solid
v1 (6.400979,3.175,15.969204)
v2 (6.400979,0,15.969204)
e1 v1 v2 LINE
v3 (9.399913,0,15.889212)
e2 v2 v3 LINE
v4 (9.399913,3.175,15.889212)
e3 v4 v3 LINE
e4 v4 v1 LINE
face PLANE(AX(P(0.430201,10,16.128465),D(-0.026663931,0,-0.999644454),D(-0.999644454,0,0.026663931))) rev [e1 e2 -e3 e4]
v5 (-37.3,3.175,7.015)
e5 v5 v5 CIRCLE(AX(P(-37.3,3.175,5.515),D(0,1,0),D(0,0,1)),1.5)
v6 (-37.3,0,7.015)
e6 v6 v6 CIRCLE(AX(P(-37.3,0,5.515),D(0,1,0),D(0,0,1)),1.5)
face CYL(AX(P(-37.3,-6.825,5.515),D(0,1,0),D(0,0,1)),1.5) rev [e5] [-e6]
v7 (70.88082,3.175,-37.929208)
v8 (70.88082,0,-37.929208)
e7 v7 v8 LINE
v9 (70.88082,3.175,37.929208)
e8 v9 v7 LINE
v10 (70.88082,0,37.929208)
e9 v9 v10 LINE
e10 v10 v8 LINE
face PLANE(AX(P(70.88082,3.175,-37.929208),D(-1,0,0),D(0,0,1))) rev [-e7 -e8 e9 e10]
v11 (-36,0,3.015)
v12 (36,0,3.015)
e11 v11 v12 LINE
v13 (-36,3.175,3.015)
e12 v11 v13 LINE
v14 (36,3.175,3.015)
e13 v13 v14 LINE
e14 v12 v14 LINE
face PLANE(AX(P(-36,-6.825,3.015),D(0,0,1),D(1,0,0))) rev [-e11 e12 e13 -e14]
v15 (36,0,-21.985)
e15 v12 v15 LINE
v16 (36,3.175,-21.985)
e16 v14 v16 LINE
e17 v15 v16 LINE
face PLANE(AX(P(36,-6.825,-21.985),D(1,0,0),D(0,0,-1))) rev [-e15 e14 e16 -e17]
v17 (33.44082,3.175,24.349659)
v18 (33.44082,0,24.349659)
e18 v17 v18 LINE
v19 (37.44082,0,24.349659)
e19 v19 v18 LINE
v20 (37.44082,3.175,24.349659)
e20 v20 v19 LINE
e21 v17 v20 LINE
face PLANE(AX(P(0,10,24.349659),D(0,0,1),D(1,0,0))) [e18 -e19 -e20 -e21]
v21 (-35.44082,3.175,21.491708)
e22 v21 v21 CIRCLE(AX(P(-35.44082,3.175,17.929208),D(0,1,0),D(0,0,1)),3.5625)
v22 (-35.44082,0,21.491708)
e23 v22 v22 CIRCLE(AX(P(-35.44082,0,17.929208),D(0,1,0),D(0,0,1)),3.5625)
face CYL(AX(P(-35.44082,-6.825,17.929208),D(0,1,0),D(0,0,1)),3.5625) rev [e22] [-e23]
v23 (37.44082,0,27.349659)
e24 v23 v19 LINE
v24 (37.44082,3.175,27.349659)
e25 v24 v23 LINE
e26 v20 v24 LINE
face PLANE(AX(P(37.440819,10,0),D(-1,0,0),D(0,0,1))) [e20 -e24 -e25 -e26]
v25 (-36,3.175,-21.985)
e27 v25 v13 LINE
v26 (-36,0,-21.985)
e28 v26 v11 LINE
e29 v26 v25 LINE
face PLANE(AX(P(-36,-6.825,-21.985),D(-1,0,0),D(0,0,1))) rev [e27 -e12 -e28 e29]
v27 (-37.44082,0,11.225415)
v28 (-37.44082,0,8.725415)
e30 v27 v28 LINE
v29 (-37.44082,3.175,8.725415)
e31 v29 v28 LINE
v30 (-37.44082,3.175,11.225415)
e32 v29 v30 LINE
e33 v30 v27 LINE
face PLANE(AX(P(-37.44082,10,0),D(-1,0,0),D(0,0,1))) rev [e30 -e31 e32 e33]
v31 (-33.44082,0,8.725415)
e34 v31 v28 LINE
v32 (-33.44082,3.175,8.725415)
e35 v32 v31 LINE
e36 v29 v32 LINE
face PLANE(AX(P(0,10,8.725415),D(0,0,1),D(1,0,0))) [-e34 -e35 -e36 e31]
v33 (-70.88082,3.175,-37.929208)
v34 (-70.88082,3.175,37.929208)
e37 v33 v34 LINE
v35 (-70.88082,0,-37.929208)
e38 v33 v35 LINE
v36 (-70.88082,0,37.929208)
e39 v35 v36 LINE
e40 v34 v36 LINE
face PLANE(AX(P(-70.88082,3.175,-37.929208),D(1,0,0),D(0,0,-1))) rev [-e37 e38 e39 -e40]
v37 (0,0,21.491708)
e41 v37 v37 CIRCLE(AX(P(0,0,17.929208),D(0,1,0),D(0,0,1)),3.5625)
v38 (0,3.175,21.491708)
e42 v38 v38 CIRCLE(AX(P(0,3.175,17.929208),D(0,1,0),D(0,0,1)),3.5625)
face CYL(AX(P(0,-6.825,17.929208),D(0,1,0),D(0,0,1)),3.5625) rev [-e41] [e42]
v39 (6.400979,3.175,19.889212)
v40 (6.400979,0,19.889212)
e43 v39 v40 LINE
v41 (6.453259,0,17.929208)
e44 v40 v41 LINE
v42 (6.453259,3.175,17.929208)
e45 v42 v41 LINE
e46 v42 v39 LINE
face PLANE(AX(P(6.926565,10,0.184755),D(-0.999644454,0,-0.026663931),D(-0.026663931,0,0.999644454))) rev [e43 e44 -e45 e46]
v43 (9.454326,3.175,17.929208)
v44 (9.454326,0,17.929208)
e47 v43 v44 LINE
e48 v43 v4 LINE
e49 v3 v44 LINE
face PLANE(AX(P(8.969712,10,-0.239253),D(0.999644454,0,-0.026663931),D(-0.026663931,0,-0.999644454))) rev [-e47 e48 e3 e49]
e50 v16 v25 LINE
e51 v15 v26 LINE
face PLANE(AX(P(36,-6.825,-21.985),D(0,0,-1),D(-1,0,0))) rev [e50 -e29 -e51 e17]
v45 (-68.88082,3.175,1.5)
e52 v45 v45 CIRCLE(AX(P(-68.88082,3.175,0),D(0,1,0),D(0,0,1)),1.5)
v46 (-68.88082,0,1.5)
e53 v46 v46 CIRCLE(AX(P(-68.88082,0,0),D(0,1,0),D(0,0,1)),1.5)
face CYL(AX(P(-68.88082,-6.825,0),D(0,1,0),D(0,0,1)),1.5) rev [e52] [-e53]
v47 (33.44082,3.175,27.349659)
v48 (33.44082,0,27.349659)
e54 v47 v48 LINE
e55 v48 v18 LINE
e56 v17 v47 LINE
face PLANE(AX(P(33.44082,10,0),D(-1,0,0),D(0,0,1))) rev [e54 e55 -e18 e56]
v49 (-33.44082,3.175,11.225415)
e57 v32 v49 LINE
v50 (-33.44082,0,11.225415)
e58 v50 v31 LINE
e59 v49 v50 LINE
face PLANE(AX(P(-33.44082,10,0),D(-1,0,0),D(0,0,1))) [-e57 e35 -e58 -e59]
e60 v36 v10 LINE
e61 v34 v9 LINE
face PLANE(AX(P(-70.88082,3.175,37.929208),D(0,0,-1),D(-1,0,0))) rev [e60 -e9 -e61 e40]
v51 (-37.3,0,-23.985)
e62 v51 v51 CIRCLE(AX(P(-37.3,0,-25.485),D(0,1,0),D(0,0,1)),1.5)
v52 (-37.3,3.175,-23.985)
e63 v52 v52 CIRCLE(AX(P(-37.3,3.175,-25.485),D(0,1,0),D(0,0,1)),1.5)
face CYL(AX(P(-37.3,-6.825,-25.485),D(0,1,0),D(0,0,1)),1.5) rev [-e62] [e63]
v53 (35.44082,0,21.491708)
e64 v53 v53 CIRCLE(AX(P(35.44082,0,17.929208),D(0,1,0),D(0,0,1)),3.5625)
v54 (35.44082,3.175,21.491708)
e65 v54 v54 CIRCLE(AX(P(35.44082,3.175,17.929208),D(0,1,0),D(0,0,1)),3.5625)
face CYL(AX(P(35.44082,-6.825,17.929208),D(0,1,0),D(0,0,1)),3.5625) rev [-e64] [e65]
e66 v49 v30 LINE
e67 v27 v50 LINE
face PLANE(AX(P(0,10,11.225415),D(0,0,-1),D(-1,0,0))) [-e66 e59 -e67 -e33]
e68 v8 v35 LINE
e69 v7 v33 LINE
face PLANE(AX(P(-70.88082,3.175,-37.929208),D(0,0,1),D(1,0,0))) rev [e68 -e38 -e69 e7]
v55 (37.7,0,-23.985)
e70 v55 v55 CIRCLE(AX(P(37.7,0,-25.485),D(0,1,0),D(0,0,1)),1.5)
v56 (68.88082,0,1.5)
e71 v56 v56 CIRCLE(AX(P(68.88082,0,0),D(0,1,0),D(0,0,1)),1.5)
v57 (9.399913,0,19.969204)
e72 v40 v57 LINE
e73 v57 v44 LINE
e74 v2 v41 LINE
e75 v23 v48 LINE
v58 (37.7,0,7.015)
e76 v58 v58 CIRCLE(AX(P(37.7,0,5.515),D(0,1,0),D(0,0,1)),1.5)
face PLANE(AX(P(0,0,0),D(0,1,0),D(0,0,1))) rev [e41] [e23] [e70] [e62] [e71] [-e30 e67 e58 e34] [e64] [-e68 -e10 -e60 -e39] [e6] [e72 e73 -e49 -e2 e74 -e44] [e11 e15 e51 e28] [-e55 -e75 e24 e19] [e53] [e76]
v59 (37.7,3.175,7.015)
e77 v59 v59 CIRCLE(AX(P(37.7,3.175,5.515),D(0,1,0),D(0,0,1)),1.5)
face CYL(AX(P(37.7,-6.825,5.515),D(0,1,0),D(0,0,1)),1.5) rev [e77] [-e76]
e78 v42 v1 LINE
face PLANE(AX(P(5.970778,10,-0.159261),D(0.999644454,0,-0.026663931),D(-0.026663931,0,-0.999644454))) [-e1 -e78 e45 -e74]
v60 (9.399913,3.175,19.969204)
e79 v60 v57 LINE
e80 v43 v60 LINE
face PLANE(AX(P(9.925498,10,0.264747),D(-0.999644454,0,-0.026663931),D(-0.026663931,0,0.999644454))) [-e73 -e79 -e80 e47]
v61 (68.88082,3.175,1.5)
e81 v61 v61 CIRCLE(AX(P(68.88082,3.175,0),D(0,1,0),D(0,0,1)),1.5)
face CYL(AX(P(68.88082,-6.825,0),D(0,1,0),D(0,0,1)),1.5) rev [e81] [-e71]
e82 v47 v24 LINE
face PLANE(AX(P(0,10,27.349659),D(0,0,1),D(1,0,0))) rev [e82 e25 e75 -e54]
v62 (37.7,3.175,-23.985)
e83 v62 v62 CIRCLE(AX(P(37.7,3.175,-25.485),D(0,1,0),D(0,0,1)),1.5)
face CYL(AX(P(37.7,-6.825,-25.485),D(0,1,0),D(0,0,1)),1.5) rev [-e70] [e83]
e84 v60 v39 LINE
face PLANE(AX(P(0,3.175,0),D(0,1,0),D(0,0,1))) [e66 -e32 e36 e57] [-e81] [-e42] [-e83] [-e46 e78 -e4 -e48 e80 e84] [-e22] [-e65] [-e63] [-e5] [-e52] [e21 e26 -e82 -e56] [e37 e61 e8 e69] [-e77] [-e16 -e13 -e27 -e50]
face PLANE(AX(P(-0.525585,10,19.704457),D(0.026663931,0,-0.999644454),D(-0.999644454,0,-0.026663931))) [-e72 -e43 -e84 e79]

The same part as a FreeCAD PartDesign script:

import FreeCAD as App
import Part
import Sketcher
Q = App.Units.Quantity

doc = App.newDocument("Part")
body = doc.addObject("PartDesign::Body", "Body")

# Sketch on XZ plane
sketch1 = body.newObject("Sketcher::SketchObject", "Sketch")
sketch1.AttachmentSupport = (doc.getObject("XZ_Plane"), [""])
sketch1.MapMode = "FlatFace"
sketch1.addGeometry([
    Part.LineSegment(App.Vector(-71, -38, 0), App.Vector(-71, 38, 0)),
    Part.LineSegment(App.Vector(-71, 38, 0), App.Vector(71, 38, 0)),
    Part.LineSegment(App.Vector(71, 38, 0), App.Vector(71, -38, 0)),
    Part.LineSegment(App.Vector(71, -38, 0), App.Vector(-71, -38, 0)),
], False)
sketch1.addConstraint([
    Sketcher.Constraint("Coincident", 0, 2, 1, 1),
    Sketcher.Constraint("Coincident", 1, 2, 2, 1),
    Sketcher.Constraint("Coincident", 2, 2, 3, 1),
    Sketcher.Constraint("Coincident", 3, 2, 0, 1),
    Sketcher.Constraint("Vertical", 0),
    Sketcher.Constraint("Horizontal", 1),
    Sketcher.Constraint("Vertical", 2),
    Sketcher.Constraint("Horizontal", 3),
    Sketcher.Constraint("Symmetric", 0, 2, 2, 2, -1, 1),
    Sketcher.Constraint("DistanceX", 1, 1, 1, 2, Q("141.761639 mm")),
    Sketcher.Constraint("DistanceY", 0, 1, 0, 2, Q("75.858415 mm")),
])
pad1 = body.newObject("PartDesign::Pad", "Pad")
pad1.Profile = sketch1
pad1.Length = 3.175
pad1.Reversed = True

# Sketch on XZ plane
sketch2 = body.newObject("Sketcher::SketchObject", "Sketch001")
sketch2.AttachmentSupport = (doc.getObject("XZ_Plane"), [""])
sketch2.MapMode = "FlatFace"
sketch2.AttachmentOffset = App.Placement(App.Vector(0, 0, -3.175), App.Rotation())
sketch2.addGeometry([
    Part.Circle(App.Vector(-35.4, 17.9, 0), App.Vector(0, 0, 1), 3.6),
    Part.Circle(App.Vector(0, 17.9, 0), App.Vector(0, 0, 1), 3.6),
    Part.Circle(App.Vector(35.4, 17.9, 0), App.Vector(0, 0, 1), 3.6),
], False)
sketch2.addConstraint([
    Sketcher.Constraint("Equal", 0, 1),
    Sketcher.Constraint("Equal", 1, 2),
    Sketcher.Constraint("Symmetric", 0, 3, 2, 3, -2),
    Sketcher.Constraint("PointOnObject", 1, 3, -2),
    Sketcher.Constraint("Horizontal", 0, 3, 1, 3),
    Sketcher.Constraint("Diameter", 0, Q("7.125 mm")),
    Sketcher.Constraint("DistanceX", 0, 3, -1, 1, Q("35.44082 mm")),
    Sketcher.Constraint("DistanceY", -1, 1, 0, 3, Q("17.929208 mm")),
])
pocket1 = body.newObject("PartDesign::Pocket", "Pocket")
pocket1.Profile = sketch2
pocket1.Length = 10
pocket1.Reversed = True

# Sketch on XZ plane
sketch3 = body.newObject("Sketcher::SketchObject", "Sketch002")
sketch3.AttachmentSupport = (doc.getObject("XZ_Plane"), [""])
sketch3.MapMode = "FlatFace"
sketch3.AttachmentOffset = App.Placement(App.Vector(0, 0, -3.175), App.Rotation())
sketch3.addGeometry([
    Part.LineSegment(App.Vector(-36, -22, 0), App.Vector(-36, 3, 0)),
    Part.LineSegment(App.Vector(-36, 3, 0), App.Vector(36, 3, 0)),
    Part.LineSegment(App.Vector(36, 3, 0), App.Vector(36, -22, 0)),
    Part.LineSegment(App.Vector(36, -22, 0), App.Vector(-36, -22, 0)),
], False)
sketch3.addConstraint([
    Sketcher.Constraint("Coincident", 0, 2, 1, 1),
    Sketcher.Constraint("Coincident", 1, 2, 2, 1),
    Sketcher.Constraint("Coincident", 2, 2, 3, 1),
    Sketcher.Constraint("Coincident", 3, 2, 0, 1),
    Sketcher.Constraint("Vertical", 0),
    Sketcher.Constraint("Horizontal", 1),
    Sketcher.Constraint("Vertical", 2),
    Sketcher.Constraint("Horizontal", 3),
    Sketcher.Constraint("DistanceX", 1, 1, 1, 2, Q("72 mm")),
    Sketcher.Constraint("DistanceY", 0, 1, 0, 2, Q("25 mm")),
    Sketcher.Constraint("DistanceX", 0, 2, -1, 1, Q("36 mm")),
    Sketcher.Constraint("DistanceY", -1, 1, 0, 2, Q("3.015 mm")),
])
pocket2 = body.newObject("PartDesign::Pocket", "Pocket001")
pocket2.Profile = sketch3
pocket2.Length = 10
pocket2.Reversed = True

# Sketch on XZ plane
sketch4 = body.newObject("Sketcher::SketchObject", "Sketch003")
sketch4.AttachmentSupport = (doc.getObject("XZ_Plane"), [""])
sketch4.MapMode = "FlatFace"
sketch4.AttachmentOffset = App.Placement(App.Vector(0, 0, -3.175), App.Rotation())
sketch4.addGeometry([
    Part.Circle(App.Vector(37.7, -25.5, 0), App.Vector(0, 0, 1), 1.5),
    Part.Circle(App.Vector(37.7, 5.5, 0), App.Vector(0, 0, 1), 1.5),
    Part.Circle(App.Vector(-37.3, 5.5, 0), App.Vector(0, 0, 1), 1.5),
    Part.Circle(App.Vector(-37.3, -25.5, 0), App.Vector(0, 0, 1), 1.5),
], False)
sketch4.addConstraint([
    Sketcher.Constraint("Equal", 0, 1),
    Sketcher.Constraint("Equal", 1, 2),
    Sketcher.Constraint("Equal", 2, 3),
    Sketcher.Constraint("Horizontal", 1, 3, 2, 3),
    Sketcher.Constraint("Horizontal", 0, 3, 3, 3),
    Sketcher.Constraint("Vertical", 0, 3, 1, 3),
    Sketcher.Constraint("Vertical", 2, 3, 3, 3),
    Sketcher.Constraint("Diameter", 0, Q("3 mm")),
    Sketcher.Constraint("DistanceY", 0, 3, 1, 3, Q("31 mm")),
    Sketcher.Constraint("DistanceX", 2, 3, 1, 3, Q("75 mm")),
    Sketcher.Constraint("DistanceX", -1, 1, 0, 3, Q("37.7 mm")),
    Sketcher.Constraint("DistanceY", 0, 3, -1, 1, Q("25.485 mm")),
])
pocket3 = body.newObject("PartDesign::Pocket", "Pocket002")
pocket3.Profile = sketch4
pocket3.Length = 10
pocket3.Reversed = True

# Sketch on XZ plane
sketch5 = body.newObject("Sketcher::SketchObject", "Sketch004")
sketch5.AttachmentSupport = (doc.getObject("XZ_Plane"), [""])
sketch5.MapMode = "FlatFace"
sketch5.AttachmentOffset = App.Placement(App.Vector(0, 0, -3.175), App.Rotation())
sketch5.addGeometry([
    Part.Circle(App.Vector(68.9, 0, 0), App.Vector(0, 0, 1), 1.5),
    Part.Circle(App.Vector(-68.9, 0, 0), App.Vector(0, 0, 1), 1.5),
], False)
sketch5.addConstraint([
    Sketcher.Constraint("Equal", 0, 1),
    Sketcher.Constraint("Symmetric", 0, 3, 1, 3, -1, 1),
    Sketcher.Constraint("PointOnObject", 0, 3, -1),
    Sketcher.Constraint("Diameter", 0, Q("3 mm")),
    Sketcher.Constraint("DistanceX", -1, 1, 0, 3, Q("68.88082 mm")),
])
pocket4 = body.newObject("PartDesign::Pocket", "Pocket003")
pocket4.Profile = sketch5
pocket4.Length = 10
pocket4.Reversed = True

# Sketch on XZ plane
sketch6 = body.newObject("Sketcher::SketchObject", "Sketch005")
sketch6.AttachmentSupport = (doc.getObject("XZ_Plane"), [""])
sketch6.MapMode = "FlatFace"
sketch6.addGeometry([
    Part.LineSegment(App.Vector(-37.4, 11.2, 0), App.Vector(-37.4, 8.7, 0)),  # 0
    Part.LineSegment(App.Vector(-37.4, 8.7, 0), App.Vector(-33.4, 8.7, 0)),  # 1
    Part.LineSegment(App.Vector(-33.4, 8.7, 0), App.Vector(-33.4, 11.2, 0)),  # 2
    Part.LineSegment(App.Vector(-33.4, 11.2, 0), App.Vector(-37.4, 11.2, 0)),  # 3
    Part.LineSegment(App.Vector(9.4, 20, 0), App.Vector(6.4, 19.9, 0)),  # 4
    Part.LineSegment(App.Vector(6.4, 19.9, 0), App.Vector(6.5, 17.9, 0)),  # 5
    Part.LineSegment(App.Vector(6.5, 17.9, 0), App.Vector(6.4, 16, 0)),  # 6
    Part.LineSegment(App.Vector(6.4, 16, 0), App.Vector(9.4, 15.9, 0)),  # 7
    Part.LineSegment(App.Vector(9.4, 15.9, 0), App.Vector(9.5, 17.9, 0)),  # 8
    Part.LineSegment(App.Vector(9.5, 17.9, 0), App.Vector(9.4, 20, 0)),  # 9
    Part.LineSegment(App.Vector(33.4, 27.3, 0), App.Vector(33.4, 24.3, 0)),  # 10
    Part.LineSegment(App.Vector(33.4, 24.3, 0), App.Vector(37.4, 24.3, 0)),  # 11
    Part.LineSegment(App.Vector(37.4, 24.3, 0), App.Vector(37.4, 27.3, 0)),  # 12
    Part.LineSegment(App.Vector(37.4, 27.3, 0), App.Vector(33.4, 27.3, 0)),  # 13
], False)
sketch6.addConstraint([
    Sketcher.Constraint("Coincident", 0, 2, 1, 1),
    Sketcher.Constraint("Coincident", 1, 2, 2, 1),
    Sketcher.Constraint("Coincident", 2, 2, 3, 1),
    Sketcher.Constraint("Coincident", 3, 2, 0, 1),
    Sketcher.Constraint("Coincident", 4, 2, 5, 1),
    Sketcher.Constraint("Coincident", 5, 2, 6, 1),
    Sketcher.Constraint("Coincident", 6, 2, 7, 1),
    Sketcher.Constraint("Coincident", 7, 2, 8, 1),
    Sketcher.Constraint("Coincident", 8, 2, 9, 1),
    Sketcher.Constraint("Coincident", 9, 2, 4, 1),
    Sketcher.Constraint("Coincident", 10, 2, 11, 1),
    Sketcher.Constraint("Coincident", 11, 2, 12, 1),
    Sketcher.Constraint("Coincident", 12, 2, 13, 1),
    Sketcher.Constraint("Coincident", 13, 2, 10, 1),
    Sketcher.Constraint("Vertical", 0),
    Sketcher.Constraint("Horizontal", 1),
    Sketcher.Constraint("Vertical", 2),
    Sketcher.Constraint("Horizontal", 3),
    Sketcher.Constraint("Vertical", 10),
    Sketcher.Constraint("Horizontal", 11),
    Sketcher.Constraint("Vertical", 12),
    Sketcher.Constraint("Horizontal", 13),
    Sketcher.Constraint("Perpendicular", 4, 5),
    Sketcher.Constraint("Perpendicular", 6, 7),
    Sketcher.Constraint("Perpendicular", 7, 8),
    Sketcher.Constraint("Parallel", 5, 9),
    Sketcher.Constraint("Horizontal", 5, 2, 8, 2),
    Sketcher.Constraint("Vertical", 4, 2, 6, 2),
    Sketcher.Constraint("Equal", 3, 11),
    Sketcher.Constraint("Equal", 5, 6),
    Sketcher.Constraint("DistanceX", 1, 1, 1, 2, Q("4 mm")),
    Sketcher.Constraint("DistanceY", 10, 2, 10, 1, Q("3 mm")),
    Sketcher.Constraint("Distance", 4, Q("3 mm")),
    Sketcher.Constraint("DistanceY", 0, 2, 0, 1, Q("2.5 mm")),
    Sketcher.Constraint("DistanceY", 7, 2, 4, 2, Q("4 mm")),
    Sketcher.Constraint("Distance", 5, Q("1.960701 mm")),
    Sketcher.Constraint("DistanceX", 2, 2, 4, 2, Q("39.841799 mm")),
    Sketcher.Constraint("DistanceX", 0, 2, -1, 1, Q("37.44082 mm")),
    Sketcher.Constraint("DistanceY", -1, 1, 4, 2, Q("19.889212 mm")),
    Sketcher.Constraint("DistanceX", -1, 1, 10, 2, Q("33.44082 mm")),
    Sketcher.Constraint("DistanceY", -1, 1, 10, 2, Q("24.349659 mm")),
    Sketcher.Constraint("DistanceY", 2, 2, 6, 2, Q("4.743789 mm")),
])
pocket5 = body.newObject("PartDesign::Pocket", "Pocket004")
pocket5.Profile = sketch6
pocket5.Length = 10

doc.recompute()
